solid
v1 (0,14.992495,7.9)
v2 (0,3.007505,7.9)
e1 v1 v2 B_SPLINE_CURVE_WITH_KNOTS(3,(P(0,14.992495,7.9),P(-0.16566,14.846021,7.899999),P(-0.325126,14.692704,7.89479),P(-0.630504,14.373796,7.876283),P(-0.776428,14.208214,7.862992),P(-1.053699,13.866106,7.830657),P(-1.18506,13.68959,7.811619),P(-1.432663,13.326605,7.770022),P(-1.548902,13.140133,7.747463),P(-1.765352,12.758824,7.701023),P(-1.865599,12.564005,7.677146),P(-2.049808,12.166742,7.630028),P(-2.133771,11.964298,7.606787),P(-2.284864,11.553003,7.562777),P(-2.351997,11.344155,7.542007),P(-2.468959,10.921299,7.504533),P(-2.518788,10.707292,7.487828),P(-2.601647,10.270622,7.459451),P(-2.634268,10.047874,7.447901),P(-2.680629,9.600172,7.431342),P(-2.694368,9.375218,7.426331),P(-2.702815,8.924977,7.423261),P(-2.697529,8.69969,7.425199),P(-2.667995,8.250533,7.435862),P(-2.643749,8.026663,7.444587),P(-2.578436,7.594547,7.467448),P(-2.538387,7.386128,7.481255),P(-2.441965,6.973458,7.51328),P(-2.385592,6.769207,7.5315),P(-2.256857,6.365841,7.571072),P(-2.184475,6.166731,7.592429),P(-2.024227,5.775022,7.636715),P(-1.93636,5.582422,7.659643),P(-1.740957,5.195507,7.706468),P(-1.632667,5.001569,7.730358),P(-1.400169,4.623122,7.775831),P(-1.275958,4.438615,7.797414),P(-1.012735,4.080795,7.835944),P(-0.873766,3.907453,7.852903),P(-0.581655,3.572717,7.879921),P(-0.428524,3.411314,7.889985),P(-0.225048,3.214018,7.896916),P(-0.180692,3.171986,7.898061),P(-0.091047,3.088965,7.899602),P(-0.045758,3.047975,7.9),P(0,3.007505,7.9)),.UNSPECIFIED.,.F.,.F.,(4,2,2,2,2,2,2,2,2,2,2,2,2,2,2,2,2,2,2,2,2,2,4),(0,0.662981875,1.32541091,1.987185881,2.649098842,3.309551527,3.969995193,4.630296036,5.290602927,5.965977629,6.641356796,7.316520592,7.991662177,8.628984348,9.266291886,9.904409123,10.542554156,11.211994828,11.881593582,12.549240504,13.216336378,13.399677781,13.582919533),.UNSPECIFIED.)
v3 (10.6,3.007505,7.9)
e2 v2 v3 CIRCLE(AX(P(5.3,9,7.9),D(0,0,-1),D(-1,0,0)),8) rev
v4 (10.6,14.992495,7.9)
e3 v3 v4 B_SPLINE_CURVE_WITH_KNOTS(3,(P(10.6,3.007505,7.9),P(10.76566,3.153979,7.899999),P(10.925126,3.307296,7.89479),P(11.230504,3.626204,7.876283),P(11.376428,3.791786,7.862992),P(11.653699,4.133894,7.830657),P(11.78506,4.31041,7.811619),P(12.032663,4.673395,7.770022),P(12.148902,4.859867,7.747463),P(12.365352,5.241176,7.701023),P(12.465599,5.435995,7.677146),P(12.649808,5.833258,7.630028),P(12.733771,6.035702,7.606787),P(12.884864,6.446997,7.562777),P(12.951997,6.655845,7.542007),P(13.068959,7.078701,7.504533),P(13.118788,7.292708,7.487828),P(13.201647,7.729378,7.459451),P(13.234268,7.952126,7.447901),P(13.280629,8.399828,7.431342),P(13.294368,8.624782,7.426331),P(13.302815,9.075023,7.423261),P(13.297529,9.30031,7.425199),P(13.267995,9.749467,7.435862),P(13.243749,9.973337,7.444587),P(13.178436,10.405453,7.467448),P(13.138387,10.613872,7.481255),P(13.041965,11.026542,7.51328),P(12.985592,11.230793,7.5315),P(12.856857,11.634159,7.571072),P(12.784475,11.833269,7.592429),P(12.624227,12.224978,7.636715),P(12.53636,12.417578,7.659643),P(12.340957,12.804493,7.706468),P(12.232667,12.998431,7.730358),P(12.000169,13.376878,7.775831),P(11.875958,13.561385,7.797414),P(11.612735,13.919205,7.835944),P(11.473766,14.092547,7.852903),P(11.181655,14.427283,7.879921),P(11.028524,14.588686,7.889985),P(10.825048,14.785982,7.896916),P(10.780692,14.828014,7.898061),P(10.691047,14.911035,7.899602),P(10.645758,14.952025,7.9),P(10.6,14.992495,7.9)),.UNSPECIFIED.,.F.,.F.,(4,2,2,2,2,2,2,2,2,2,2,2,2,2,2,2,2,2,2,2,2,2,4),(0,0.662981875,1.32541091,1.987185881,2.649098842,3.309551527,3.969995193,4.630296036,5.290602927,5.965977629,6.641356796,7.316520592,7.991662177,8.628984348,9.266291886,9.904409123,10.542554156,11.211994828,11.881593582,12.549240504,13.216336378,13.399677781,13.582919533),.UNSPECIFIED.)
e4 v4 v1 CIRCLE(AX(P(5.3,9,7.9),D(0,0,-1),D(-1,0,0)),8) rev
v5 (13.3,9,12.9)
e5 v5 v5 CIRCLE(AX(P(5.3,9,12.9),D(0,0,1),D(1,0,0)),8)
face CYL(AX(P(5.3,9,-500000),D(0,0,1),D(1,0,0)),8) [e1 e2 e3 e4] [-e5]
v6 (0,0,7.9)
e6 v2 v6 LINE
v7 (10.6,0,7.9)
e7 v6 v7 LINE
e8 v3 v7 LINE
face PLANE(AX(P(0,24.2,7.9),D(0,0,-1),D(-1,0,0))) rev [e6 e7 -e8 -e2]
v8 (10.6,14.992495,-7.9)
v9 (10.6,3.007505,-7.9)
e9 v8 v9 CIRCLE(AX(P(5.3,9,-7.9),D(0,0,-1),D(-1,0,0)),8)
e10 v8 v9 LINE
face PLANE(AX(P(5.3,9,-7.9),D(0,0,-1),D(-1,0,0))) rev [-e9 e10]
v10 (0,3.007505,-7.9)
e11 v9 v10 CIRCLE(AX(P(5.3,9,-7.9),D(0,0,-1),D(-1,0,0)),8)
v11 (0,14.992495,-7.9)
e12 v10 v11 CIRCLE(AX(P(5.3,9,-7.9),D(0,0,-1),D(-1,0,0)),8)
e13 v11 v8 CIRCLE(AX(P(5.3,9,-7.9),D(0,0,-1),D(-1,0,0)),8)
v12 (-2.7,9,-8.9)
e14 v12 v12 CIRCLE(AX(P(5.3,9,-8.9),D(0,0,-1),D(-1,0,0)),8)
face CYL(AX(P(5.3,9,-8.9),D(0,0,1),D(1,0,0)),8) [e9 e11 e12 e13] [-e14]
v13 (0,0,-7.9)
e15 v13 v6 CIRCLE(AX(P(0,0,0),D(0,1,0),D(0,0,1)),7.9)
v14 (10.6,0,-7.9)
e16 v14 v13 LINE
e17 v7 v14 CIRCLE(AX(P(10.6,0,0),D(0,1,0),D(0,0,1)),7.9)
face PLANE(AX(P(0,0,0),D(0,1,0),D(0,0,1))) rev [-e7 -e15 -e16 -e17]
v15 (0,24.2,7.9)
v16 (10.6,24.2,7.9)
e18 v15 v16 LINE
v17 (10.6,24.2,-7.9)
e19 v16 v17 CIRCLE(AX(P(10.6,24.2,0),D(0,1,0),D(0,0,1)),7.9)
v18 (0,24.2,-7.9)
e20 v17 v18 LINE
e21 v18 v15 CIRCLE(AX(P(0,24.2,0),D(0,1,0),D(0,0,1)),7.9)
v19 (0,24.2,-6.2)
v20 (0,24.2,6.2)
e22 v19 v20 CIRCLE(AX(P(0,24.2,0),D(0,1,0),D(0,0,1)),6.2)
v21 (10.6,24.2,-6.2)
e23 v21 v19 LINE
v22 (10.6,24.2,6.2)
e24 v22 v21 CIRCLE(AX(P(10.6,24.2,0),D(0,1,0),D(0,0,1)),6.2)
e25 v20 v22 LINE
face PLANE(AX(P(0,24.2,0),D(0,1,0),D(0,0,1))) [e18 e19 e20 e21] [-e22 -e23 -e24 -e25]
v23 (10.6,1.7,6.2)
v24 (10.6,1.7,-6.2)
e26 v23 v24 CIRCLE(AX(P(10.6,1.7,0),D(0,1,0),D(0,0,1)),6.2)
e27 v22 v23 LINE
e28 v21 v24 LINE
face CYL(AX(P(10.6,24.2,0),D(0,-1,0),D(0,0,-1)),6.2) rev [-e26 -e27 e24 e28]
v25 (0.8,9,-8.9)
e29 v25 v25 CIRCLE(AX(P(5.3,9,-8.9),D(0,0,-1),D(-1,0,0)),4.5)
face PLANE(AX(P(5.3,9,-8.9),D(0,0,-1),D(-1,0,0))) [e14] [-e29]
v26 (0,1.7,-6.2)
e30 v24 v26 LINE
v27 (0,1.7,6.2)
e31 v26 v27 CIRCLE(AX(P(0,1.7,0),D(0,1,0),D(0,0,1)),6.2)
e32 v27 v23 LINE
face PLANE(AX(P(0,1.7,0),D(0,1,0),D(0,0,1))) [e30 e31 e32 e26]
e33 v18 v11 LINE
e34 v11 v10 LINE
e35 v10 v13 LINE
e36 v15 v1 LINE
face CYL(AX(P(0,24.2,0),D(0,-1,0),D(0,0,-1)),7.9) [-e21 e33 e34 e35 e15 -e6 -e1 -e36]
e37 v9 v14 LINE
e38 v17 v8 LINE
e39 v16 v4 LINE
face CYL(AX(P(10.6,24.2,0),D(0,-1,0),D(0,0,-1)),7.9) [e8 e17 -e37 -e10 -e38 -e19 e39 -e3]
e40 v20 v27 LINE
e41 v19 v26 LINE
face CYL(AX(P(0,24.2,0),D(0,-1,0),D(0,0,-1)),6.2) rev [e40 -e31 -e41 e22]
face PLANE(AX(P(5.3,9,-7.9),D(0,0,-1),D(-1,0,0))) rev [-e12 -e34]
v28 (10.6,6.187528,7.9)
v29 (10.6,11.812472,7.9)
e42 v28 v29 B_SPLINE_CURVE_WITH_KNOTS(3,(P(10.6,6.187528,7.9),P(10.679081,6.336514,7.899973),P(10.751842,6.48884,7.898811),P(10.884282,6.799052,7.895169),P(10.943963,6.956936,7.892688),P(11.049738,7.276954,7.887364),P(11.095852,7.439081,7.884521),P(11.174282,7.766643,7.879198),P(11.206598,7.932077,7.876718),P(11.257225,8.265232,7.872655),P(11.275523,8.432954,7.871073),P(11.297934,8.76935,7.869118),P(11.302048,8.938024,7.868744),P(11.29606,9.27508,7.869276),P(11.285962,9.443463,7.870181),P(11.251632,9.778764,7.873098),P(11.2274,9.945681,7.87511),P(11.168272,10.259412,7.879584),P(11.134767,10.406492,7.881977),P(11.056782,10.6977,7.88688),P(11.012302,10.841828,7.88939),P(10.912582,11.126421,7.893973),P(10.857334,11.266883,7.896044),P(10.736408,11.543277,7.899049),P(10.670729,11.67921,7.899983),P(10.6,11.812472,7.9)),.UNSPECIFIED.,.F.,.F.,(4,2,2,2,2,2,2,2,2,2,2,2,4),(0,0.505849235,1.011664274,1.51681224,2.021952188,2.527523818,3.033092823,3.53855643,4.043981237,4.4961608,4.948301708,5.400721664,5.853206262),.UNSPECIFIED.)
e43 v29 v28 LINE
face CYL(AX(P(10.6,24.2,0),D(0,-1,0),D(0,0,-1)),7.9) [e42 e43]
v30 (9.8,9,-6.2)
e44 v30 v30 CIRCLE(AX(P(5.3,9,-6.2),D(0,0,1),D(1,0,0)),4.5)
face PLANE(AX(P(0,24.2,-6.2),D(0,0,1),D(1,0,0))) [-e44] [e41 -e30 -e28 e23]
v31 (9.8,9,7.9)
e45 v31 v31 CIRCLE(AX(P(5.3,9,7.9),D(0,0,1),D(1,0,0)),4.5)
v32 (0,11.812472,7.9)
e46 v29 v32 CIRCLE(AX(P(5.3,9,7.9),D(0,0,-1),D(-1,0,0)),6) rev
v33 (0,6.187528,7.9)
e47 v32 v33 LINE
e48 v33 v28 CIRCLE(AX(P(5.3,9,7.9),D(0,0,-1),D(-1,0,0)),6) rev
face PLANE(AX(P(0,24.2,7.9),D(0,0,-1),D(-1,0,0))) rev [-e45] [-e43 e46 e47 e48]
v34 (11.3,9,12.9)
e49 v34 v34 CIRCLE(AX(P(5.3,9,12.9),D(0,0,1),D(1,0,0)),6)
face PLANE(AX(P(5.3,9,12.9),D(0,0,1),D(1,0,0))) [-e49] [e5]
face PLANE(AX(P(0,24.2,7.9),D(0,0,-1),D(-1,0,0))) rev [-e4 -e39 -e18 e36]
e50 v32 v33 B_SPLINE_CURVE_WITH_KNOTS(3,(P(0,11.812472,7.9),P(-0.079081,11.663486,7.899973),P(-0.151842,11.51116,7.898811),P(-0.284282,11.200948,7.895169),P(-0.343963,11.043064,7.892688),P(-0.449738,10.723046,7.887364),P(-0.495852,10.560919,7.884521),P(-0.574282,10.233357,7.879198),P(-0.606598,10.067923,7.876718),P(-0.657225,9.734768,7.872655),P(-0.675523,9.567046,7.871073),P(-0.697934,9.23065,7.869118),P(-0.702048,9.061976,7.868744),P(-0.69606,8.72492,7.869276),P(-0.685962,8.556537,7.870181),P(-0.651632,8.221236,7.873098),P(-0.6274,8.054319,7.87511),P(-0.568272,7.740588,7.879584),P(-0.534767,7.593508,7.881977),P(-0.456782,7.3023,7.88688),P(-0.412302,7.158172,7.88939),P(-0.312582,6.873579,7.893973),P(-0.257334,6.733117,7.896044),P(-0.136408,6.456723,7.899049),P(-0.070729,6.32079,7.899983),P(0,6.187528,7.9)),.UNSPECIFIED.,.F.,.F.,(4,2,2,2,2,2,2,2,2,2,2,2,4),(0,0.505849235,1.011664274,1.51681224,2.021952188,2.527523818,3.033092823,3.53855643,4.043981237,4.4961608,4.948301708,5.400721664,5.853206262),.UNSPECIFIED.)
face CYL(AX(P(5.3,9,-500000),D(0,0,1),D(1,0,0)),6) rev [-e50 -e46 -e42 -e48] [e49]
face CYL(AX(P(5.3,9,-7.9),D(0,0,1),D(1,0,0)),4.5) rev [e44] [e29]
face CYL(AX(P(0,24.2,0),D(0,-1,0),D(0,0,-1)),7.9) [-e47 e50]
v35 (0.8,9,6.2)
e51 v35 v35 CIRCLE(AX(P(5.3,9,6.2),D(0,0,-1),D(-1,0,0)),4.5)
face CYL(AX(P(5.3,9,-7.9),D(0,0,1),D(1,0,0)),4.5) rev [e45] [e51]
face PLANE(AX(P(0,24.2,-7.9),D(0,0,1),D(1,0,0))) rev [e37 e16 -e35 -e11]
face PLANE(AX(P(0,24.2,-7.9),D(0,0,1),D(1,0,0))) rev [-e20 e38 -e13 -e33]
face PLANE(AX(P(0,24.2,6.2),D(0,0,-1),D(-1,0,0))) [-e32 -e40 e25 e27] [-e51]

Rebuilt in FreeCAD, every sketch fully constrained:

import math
import FreeCAD as App
import Part
import Sketcher
from FreeCAD import Vector
Q = App.Units.Quantity


def faces_at(feature, points):
    """Names of the faces that lie closest to the given points."""
    faces = feature.Shape.Faces
    near = lambda p: min(range(len(faces)), key=lambda i: faces[i].distToShape(Part.Vertex(*p))[0])
    return sorted({f"Face{near(p) + 1}" for p in points})

doc = App.newDocument("Part")
params = doc.addObject("Spreadsheet::Sheet", "Params")
for row, (alias, value) in enumerate([
    ("sketch1_radius", "7.9 mm"),
    ("sketch1_width", "10.6 mm"),
    ("pad1_length", "24.2 mm"),
    ("thickness_wall", "1.7 mm"),
    ("sketch2_diameter", "16 mm"),
    ("sketch2_diameter2", "12 mm"),
    ("pad2_length", "5.475716 mm"),
    ("sketch3_diameter", "9 mm"),
    ("sketch4_diameter", "16 mm"),
    ("sketch4_diameter2", "9 mm"),
    ("pad3_length", "1 mm"),
], start=1):
    params.set(f"A{row}", alias)
    params.set(f"B{row}", "=" + value)
    params.setAlias(f"B{row}", alias)

body = doc.addObject("PartDesign::Body", "Body")

sketch1 = doc.addObject("Sketcher::SketchObject", "Sketch")
body.addObject(sketch1)
sketch1.AttachmentSupport = (doc.XZ_Plane, [""])
sketch1.MapMode = "FlatFace"
sketch1.addGeometry([
    Part.LineSegment(Vector(11, -8, 0), Vector(0, -8, 0)),
    Part.ArcOfCircle(Part.Circle(Vector(0, 0, 0), Vector(0, 0, 1), 8), math.radians(90), math.radians(270)),
    Part.LineSegment(Vector(0, 8, 0), Vector(11, 8, 0)),
    Part.ArcOfCircle(Part.Circle(Vector(11, 0, 0), Vector(0, 0, 1), 8), math.radians(-90), math.radians(90)),
], False)
sketch1.addConstraint([
    Sketcher.Constraint("Tangent", 0, 2, 1, 2),
    Sketcher.Constraint("Tangent", 1, 1, 2, 1),
    Sketcher.Constraint("Tangent", 2, 2, 3, 2),
    Sketcher.Constraint("Tangent", 3, 1, 0, 1),
    Sketcher.Constraint("Horizontal", 0),
    Sketcher.Constraint("Horizontal", 2),
    Sketcher.Constraint("Coincident", 1, 3, -1, 1),
    Sketcher.Constraint("Radius", 1, Q("7.9 mm")),
    Sketcher.Constraint("DistanceX", 0, 2, 0, 1, Q("10.6 mm")),
])
sketch1.setExpression("Constraints[7]", "Params.sketch1_radius")
sketch1.setExpression("Constraints[8]", "Params.sketch1_width")
pad1 = doc.addObject("PartDesign::Pad", "Pad")
body.addObject(pad1)
pad1.Profile = sketch1
pad1.setExpression("Length", "Params.pad1_length")
pad1.Reversed = True
doc.recompute()

thickness = doc.addObject("PartDesign::Thickness", "Thickness")
body.addObject(thickness)
thickness.Base = (pad1, faces_at(pad1, [(5.3, 24.2, 0)]))
thickness.setExpression("Value", "Params.thickness_wall")
thickness.Reversed = True
thickness.Join = "Intersection"

sketch2 = doc.addObject("Sketcher::SketchObject", "Sketch001")
body.addObject(sketch2)
sketch2.AttachmentSupport = (doc.XY_Plane, [""])
sketch2.MapMode = "FlatFace"
sketch2.AttachmentOffset = App.Placement(Vector(0, 0, 12.9), App.Rotation())
sketch2.addGeometry([
    Part.Circle(Vector(5, 9, 0), Vector(0, 0, 1), 8),
    Part.Circle(Vector(5, 9, 0), Vector(0, 0, 1), 6),
], False)
sketch2.addConstraint([
    Sketcher.Constraint("Coincident", 1, 3, 0, 3),
    Sketcher.Constraint("Diameter", 0, Q("16 mm")),
    Sketcher.Constraint("Diameter", 1, Q("12 mm")),
    Sketcher.Constraint("DistanceY", -1, 1, 0, 3, Q("9 mm")),
    Sketcher.Constraint("DistanceX", -1, 1, 0, 3, Q("5.3 mm")),
])
sketch2.setExpression("Constraints[1]", "Params.sketch2_diameter")
sketch2.setExpression("Constraints[2]", "Params.sketch2_diameter2")
pad2 = doc.addObject("PartDesign::Pad", "Pad001")
body.addObject(pad2)
pad2.Profile = sketch2
pad2.setExpression("Length", "Params.pad2_length")
pad2.Reversed = True

sketch3 = doc.addObject("Sketcher::SketchObject", "Sketch002")
body.addObject(sketch3)
sketch3.AttachmentSupport = (doc.XY_Plane, [""])
sketch3.MapMode = "FlatFace"
sketch3.AttachmentOffset = App.Placement(Vector(0, 0, 7.9), App.Rotation())
sketch3.addGeometry(Part.Circle(Vector(5.3, 9, 0), Vector(0, 0, 1), 4.5), False)
sketch3.addConstraint([
    Sketcher.Constraint("Diameter", 0, Q("9 mm")),
    Sketcher.Constraint("DistanceY", -1, 1, 0, 3, Q("9 mm")),
    Sketcher.Constraint("DistanceX", -1, 1, 0, 3, Q("5.3 mm")),
])
sketch3.setExpression("Constraints[0]", "Params.sketch3_diameter")
pocket1 = doc.addObject("PartDesign::Pocket", "Pocket")
body.addObject(pocket1)
pocket1.Profile = sketch3
pocket1.Type = "ThroughAll"

sketch4 = doc.addObject("Sketcher::SketchObject", "Sketch003")
body.addObject(sketch4)
sketch4.AttachmentSupport = (doc.XY_Plane, [""])
sketch4.MapMode = "FlatFace"
sketch4.AttachmentOffset = App.Placement(Vector(0, 0, -7.9), App.Rotation())
sketch4.addGeometry([
    Part.Circle(Vector(5.3, 9, 0), Vector(0, 0, 1), 8),
    Part.Circle(Vector(5.3, 9, 0), Vector(0, 0, 1), 4.5),
], False)
sketch4.addConstraint([
    Sketcher.Constraint("Coincident", 1, 3, 0, 3),
    Sketcher.Constraint("Diameter", 0, Q("16 mm")),
    Sketcher.Constraint("Diameter", 1, Q("9 mm")),
    Sketcher.Constraint("DistanceY", -1, 1, 0, 3, Q("9 mm")),
    Sketcher.Constraint("DistanceX", -1, 1, 0, 3, Q("5.3 mm")),
])
sketch4.setExpression("Constraints[1]", "Params.sketch4_diameter")
sketch4.setExpression("Constraints[2]", "Params.sketch4_diameter2")
pad3 = doc.addObject("PartDesign::Pad", "Pad002")
body.addObject(pad3)
pad3.Profile = sketch4
pad3.setExpression("Length", "Params.pad3_length")
pad3.Reversed = True

doc.recompute()
